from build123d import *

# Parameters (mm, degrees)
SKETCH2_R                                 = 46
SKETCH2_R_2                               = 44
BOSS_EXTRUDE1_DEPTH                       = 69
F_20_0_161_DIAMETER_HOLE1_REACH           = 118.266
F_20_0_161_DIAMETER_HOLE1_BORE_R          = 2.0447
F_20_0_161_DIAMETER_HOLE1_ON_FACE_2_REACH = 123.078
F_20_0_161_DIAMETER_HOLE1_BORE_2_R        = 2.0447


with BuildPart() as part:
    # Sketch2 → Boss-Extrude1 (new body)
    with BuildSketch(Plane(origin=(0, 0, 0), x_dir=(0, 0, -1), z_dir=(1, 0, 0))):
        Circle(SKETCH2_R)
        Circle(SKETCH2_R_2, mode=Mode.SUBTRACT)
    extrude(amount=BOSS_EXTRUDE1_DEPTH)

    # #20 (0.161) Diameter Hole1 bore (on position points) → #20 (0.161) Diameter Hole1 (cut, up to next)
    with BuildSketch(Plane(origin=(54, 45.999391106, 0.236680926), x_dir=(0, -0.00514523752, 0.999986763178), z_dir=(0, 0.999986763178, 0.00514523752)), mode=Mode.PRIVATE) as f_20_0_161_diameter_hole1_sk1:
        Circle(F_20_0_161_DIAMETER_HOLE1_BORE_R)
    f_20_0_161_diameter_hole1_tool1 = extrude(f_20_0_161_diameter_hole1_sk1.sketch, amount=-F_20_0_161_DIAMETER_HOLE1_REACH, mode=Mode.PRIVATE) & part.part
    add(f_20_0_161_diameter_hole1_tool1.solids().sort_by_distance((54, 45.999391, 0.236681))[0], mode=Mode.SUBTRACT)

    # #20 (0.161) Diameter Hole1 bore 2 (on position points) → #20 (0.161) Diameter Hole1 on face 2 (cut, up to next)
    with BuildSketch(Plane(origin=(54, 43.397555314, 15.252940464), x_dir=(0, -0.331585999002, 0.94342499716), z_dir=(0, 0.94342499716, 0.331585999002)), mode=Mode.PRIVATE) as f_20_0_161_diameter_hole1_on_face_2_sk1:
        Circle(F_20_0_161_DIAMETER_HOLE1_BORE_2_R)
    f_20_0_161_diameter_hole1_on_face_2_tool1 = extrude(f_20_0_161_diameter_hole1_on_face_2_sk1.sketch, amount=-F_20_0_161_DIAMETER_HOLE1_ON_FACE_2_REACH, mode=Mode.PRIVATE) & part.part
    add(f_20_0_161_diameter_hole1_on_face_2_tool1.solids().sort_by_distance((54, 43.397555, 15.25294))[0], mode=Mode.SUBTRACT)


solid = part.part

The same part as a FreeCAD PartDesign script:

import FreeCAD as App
import Part
import Sketcher
Q = App.Units.Quantity

doc = App.newDocument("Part")
body = doc.addObject("PartDesign::Body", "Body")

# Sketch on YZ plane
sketch1 = doc.addObject("Sketcher::SketchObject", "Sketch")
body.addObject(sketch1)
sketch1.AttachmentSupport = (doc.YZ_Plane, [""])
sketch1.MapMode = "FlatFace"
sketch1.addGeometry(Part.Circle(App.Vector(0, 0, 0), App.Vector(0, 0, 1), 46), False)
sketch1.addGeometry(Part.Circle(App.Vector(0, 0, 0), App.Vector(0, 0, 1), 44), False)
sketch1.addConstraint(Sketcher.Constraint("Coincident", 0, 3, -1, 1))
sketch1.addConstraint(Sketcher.Constraint("Coincident", 1, 3, -1, 1))
sketch1.addConstraint(Sketcher.Constraint("Diameter", 0, Q("92 mm")))
sketch1.addConstraint(Sketcher.Constraint("Diameter", 1, Q("88 mm")))
pad1 = doc.addObject("PartDesign::Pad", "Pad")
body.addObject(pad1)
pad1.Profile = sketch1
pad1.Length = 69

# Sketch on an angled plane
sketch2 = doc.addObject("Sketcher::SketchObject", "Sketch001")
body.addObject(sketch2)
sketch2.Placement = App.Placement(App.Vector(54, 45.999391, 0.236681), App.Rotation(App.Vector(0, -0.005145238, 0.999986763), App.Vector(1, 0, 0), App.Vector(0, 0.999986763, 0.005145238), "ZXY"))
sketch2.addGeometry(Part.Circle(App.Vector(0, 0, 0), App.Vector(0, 0, 1), 2), False)
sketch2.addConstraint(Sketcher.Constraint("Coincident", 0, 3, -1, 1))
sketch2.addConstraint(Sketcher.Constraint("Diameter", 0, Q("4.0894 mm")))
pocket1 = doc.addObject("PartDesign::Pocket", "Pocket")
body.addObject(pocket1)
pocket1.Profile = sketch2
pocket1.Length = 2.047535

# Sketch on an angled plane
sketch3 = doc.addObject("Sketcher::SketchObject", "Sketch002")
body.addObject(sketch3)
sketch3.Placement = App.Placement(App.Vector(54, 43.397555, 15.25294), App.Rotation(App.Vector(0, -0.331585999, 0.943424997), App.Vector(1, 0, 0), App.Vector(0, 0.943424997, 0.331585999), "ZXY"))
sketch3.addGeometry(Part.Circle(App.Vector(0, 0, 0), App.Vector(0, 0, 1), 2), False)
sketch3.addConstraint(Sketcher.Constraint("Coincident", 0, 3, -1, 1))
sketch3.addConstraint(Sketcher.Constraint("Diameter", 0, Q("4.0894 mm")))
pocket2 = doc.addObject("PartDesign::Pocket", "Pocket001")
body.addObject(pocket2)
pocket2.Profile = sketch3
pocket2.Length = 2.047534

doc.recompute()
